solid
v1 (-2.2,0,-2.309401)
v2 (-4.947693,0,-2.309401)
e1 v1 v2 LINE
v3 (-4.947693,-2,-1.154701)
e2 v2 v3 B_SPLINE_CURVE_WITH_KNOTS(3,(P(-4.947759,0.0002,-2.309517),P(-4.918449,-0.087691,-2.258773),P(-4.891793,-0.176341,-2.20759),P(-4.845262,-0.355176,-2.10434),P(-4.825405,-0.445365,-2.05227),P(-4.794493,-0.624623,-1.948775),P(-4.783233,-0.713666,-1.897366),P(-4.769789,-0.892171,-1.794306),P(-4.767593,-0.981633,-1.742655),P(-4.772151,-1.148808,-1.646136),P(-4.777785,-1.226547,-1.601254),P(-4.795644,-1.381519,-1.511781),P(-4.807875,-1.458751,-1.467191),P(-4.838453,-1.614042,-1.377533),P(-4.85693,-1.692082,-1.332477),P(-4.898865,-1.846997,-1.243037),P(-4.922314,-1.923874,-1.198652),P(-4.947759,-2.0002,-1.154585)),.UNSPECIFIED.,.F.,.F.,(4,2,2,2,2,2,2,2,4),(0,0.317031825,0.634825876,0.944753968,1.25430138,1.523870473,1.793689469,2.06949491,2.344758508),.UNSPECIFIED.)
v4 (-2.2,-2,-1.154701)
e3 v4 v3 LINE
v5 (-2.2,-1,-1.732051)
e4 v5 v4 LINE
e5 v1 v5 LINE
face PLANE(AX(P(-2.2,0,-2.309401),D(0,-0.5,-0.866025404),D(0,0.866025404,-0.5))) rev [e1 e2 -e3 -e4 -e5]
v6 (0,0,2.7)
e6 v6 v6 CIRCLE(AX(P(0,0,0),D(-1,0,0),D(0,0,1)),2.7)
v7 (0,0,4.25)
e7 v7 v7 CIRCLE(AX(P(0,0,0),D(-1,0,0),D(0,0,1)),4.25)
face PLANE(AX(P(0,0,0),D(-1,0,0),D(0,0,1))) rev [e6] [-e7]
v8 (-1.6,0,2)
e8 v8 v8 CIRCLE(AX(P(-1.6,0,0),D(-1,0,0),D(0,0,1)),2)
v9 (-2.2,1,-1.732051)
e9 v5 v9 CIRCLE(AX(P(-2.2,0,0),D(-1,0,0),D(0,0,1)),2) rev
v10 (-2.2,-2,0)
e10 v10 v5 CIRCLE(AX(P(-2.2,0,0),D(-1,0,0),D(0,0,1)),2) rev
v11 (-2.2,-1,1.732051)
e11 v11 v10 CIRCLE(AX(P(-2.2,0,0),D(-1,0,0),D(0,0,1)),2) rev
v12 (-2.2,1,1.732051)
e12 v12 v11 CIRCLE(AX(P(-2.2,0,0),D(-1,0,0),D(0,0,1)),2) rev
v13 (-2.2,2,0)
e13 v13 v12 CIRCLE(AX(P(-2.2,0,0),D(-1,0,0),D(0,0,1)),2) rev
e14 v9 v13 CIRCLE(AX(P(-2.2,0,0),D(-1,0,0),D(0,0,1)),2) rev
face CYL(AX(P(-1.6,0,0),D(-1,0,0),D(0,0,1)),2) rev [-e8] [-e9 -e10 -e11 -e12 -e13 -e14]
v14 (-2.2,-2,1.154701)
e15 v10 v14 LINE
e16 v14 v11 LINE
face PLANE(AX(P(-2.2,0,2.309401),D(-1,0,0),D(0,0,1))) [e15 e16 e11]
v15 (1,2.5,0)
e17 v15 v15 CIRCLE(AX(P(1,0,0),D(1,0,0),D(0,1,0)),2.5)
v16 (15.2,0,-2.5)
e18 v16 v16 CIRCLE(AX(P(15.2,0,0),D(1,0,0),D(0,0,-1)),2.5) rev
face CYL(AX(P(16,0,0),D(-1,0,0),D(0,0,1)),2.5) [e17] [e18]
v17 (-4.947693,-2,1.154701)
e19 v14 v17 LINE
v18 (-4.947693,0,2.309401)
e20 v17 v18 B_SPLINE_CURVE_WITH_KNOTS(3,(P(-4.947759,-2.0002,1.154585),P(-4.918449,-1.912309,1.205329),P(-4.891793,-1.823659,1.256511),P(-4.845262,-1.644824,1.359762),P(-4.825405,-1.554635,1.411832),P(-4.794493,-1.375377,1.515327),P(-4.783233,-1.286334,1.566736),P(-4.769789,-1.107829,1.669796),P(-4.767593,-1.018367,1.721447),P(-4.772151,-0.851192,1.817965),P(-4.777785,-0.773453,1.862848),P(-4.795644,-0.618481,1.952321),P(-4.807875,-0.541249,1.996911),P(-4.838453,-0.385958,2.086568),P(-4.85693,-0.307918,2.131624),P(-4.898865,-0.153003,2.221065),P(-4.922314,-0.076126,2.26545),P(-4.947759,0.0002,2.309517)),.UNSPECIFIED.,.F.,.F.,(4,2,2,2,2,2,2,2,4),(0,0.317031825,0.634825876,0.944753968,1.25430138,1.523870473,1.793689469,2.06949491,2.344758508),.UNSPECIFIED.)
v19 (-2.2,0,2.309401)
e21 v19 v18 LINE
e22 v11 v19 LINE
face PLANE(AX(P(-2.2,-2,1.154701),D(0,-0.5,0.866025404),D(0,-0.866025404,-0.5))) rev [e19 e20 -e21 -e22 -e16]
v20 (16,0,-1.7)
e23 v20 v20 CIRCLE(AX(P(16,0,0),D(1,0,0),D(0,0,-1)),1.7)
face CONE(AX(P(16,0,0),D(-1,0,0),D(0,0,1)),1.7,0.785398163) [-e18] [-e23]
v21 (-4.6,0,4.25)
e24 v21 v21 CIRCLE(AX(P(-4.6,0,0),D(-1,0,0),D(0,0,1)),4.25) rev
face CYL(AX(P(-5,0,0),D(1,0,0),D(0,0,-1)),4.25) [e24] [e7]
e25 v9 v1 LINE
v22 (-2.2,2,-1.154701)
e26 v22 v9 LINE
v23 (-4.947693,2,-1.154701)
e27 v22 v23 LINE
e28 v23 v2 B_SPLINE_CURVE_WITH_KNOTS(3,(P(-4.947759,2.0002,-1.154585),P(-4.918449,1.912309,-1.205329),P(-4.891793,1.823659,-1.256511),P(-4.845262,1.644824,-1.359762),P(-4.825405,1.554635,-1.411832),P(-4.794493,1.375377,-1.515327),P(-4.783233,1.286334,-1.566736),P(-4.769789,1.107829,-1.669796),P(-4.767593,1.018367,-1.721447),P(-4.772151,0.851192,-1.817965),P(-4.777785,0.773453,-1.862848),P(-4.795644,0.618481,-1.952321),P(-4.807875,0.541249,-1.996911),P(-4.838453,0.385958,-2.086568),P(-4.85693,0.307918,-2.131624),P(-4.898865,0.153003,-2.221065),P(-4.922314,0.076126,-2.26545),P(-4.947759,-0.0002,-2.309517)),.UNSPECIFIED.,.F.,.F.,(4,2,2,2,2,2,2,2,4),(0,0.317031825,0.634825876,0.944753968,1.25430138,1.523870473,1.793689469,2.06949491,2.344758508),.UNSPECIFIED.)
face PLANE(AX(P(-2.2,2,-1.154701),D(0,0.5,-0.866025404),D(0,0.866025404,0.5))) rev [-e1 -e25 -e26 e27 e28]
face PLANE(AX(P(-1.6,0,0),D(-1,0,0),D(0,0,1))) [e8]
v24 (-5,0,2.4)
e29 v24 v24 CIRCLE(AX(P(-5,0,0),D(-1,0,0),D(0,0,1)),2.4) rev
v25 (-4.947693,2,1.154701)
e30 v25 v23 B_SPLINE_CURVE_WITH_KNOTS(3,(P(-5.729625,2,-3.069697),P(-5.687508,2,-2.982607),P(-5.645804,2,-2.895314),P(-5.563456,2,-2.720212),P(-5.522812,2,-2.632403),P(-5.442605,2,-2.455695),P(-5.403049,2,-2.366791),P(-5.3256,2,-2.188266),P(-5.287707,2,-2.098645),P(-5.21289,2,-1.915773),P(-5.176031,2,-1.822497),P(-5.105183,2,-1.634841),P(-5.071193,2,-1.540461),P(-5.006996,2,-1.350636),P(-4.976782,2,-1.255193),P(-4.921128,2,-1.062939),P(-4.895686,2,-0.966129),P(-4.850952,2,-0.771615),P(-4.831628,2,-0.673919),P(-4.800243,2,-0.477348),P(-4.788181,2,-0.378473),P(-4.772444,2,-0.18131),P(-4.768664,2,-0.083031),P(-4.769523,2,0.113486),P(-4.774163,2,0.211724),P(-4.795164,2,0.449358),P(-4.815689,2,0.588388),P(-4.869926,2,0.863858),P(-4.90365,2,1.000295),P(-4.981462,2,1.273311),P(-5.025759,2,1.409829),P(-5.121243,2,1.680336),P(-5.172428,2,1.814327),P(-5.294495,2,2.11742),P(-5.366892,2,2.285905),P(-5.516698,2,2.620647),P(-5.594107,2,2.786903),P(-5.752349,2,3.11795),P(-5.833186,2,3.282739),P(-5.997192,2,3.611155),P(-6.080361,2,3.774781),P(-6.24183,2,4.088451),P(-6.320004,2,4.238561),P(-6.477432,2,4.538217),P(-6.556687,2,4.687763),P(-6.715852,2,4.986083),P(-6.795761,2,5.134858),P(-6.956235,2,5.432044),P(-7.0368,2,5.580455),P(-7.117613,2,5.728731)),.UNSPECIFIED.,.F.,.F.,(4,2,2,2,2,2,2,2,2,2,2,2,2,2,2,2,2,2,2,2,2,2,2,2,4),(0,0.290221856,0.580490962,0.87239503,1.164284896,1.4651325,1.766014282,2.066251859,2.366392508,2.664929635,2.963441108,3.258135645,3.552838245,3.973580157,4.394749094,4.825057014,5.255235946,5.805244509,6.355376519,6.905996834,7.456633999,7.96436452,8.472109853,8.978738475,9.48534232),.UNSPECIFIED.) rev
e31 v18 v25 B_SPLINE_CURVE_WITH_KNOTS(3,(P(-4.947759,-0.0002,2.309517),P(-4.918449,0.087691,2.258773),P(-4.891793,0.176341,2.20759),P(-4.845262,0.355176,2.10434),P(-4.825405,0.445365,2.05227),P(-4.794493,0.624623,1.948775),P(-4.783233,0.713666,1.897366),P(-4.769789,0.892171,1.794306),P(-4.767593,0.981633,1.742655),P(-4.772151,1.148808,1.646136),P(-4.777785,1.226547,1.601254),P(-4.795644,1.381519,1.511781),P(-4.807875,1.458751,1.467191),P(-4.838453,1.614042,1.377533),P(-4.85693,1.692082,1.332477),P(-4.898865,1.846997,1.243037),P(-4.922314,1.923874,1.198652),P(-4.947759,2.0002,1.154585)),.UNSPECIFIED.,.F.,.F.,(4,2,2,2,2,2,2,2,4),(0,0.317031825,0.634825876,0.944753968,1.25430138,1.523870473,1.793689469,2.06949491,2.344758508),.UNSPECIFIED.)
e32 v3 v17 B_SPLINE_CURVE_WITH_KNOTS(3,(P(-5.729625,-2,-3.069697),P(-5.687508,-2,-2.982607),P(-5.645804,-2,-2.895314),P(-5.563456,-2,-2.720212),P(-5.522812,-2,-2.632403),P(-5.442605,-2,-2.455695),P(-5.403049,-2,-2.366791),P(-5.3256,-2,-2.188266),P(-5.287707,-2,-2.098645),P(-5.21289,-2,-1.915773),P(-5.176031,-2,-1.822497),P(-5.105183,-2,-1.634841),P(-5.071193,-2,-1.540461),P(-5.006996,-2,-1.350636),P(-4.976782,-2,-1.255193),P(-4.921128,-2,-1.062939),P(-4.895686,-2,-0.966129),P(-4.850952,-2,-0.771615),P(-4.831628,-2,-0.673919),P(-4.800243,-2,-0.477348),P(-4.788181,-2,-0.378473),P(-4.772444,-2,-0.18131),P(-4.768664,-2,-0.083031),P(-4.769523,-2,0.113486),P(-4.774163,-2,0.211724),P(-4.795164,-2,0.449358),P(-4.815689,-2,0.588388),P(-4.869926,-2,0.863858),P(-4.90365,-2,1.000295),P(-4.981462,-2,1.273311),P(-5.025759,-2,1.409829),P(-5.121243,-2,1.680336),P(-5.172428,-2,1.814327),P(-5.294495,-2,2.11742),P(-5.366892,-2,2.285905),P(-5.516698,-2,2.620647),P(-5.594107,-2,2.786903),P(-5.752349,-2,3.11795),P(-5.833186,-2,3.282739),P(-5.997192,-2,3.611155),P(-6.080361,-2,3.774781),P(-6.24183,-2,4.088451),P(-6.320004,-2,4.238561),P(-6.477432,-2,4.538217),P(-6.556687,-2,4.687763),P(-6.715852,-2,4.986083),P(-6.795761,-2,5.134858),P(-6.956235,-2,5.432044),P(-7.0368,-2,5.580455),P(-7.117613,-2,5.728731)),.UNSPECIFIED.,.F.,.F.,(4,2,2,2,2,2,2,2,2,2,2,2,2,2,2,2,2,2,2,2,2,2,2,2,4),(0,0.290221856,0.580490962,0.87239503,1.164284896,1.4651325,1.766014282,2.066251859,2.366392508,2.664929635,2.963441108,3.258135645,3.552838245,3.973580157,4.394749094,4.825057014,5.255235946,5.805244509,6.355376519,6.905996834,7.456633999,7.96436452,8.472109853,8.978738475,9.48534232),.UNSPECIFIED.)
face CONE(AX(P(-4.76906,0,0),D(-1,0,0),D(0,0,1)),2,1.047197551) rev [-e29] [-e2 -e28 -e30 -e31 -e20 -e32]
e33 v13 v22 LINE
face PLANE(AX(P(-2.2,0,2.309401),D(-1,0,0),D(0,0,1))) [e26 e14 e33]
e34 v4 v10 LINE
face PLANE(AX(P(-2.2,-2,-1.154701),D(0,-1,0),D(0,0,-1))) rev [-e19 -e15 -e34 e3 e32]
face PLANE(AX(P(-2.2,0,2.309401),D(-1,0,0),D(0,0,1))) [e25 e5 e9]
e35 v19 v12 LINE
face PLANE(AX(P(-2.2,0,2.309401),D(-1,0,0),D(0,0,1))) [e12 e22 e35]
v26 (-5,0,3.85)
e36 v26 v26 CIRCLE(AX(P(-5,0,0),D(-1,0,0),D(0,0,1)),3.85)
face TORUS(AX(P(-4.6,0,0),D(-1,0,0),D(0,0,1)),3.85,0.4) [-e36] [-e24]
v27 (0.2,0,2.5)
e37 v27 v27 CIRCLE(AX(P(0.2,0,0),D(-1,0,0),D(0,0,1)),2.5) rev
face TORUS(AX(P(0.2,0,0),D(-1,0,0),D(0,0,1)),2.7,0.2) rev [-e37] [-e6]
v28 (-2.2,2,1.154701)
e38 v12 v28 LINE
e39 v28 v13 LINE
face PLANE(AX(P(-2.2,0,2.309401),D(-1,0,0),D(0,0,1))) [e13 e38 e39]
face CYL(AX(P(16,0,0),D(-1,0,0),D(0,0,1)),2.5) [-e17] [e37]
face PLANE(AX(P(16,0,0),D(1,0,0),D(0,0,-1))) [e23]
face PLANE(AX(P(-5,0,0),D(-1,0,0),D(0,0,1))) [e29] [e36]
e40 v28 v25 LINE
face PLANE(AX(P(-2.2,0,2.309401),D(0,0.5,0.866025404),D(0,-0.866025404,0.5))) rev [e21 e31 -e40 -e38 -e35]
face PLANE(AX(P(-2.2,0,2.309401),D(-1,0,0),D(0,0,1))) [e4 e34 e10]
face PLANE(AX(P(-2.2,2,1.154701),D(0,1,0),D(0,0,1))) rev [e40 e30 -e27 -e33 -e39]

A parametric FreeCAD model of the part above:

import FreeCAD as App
import Part
import Sketcher

V = App.Vector
Q = App.Units.Quantity


def edges_at(feature, points):
    """Names of the edges that pass closest to the given points."""
    edges = feature.Shape.Edges
    near = lambda p: min(range(len(edges)), key=lambda i: edges[i].distToShape(Part.Vertex(*p))[0])
    return sorted({f"Edge{near(p) + 1}" for p in points})


def add_polygon(sketch, points):
    """Adds a closed chain of lines whose ends are joined by coincident constraints."""
    first, n = sketch.GeometryCount, len(points)
    for a, b in zip(points, points[1:] + points[:1]):
        sketch.addGeometry(Part.LineSegment(App.Vector(*a, 0), App.Vector(*b, 0)), False)
    for i in range(n):
        sketch.addConstraint(Sketcher.Constraint("Coincident", first + i, 2, first + (i + 1) % n, 1))

doc = App.newDocument("Part")
body = doc.addObject("PartDesign::Body", "Body")

# Sketch on YZ plane
sketch1 = body.newObject("Sketcher::SketchObject", "Sketch")
sketch1.AttachmentSupport = (doc.getObject("YZ_Plane"), [""])
sketch1.MapMode = "FlatFace"
sketch1.addGeometry(Part.Circle(V(0, 0, 0), V(0, 0, 1), 2.5), False)
sketch1.addConstraint(Sketcher.Constraint("Coincident", 0, 3, -1, 1))
sketch1.addConstraint(Sketcher.Constraint("Diameter", 0, 5.0))
pad1 = body.newObject("PartDesign::Pad", "Pad")
pad1.Profile = sketch1
pad1.Length = 16

# Sketch on YZ plane
sketch2 = body.newObject("Sketcher::SketchObject", "Sketch001")
sketch2.AttachmentSupport = (doc.getObject("YZ_Plane"), [""])
sketch2.MapMode = "FlatFace"
sketch2.addGeometry(Part.Circle(V(0, 0, 0), V(0, 0, 1), 4.2), False)
sketch2.addConstraint(Sketcher.Constraint("Coincident", 0, 3, -1, 1))
sketch2.addConstraint(Sketcher.Constraint("Diameter", 0, 8.5))
pad2 = body.newObject("PartDesign::Pad", "Pad001")
pad2.Profile = sketch2
pad2.Length = 5
pad2.Reversed = True

# Sketch on YZ plane
sketch3 = body.newObject("Sketcher::SketchObject", "Sketch002")
sketch3.AttachmentSupport = (doc.getObject("YZ_Plane"), [""])
sketch3.MapMode = "FlatFace"
sketch3.AttachmentOffset = App.Placement(V(0, 0, -5), App.Rotation())
sketch3.addGeometry(Part.Circle(V(0, 0, 0), V(0, 0, 1), 2), False)
sketch3.addConstraint(Sketcher.Constraint("Coincident", 0, 3, -1, 1))
sketch3.addConstraint(Sketcher.Constraint("Diameter", 0, 4.0))
pocket1 = body.newObject("PartDesign::Pocket", "Pocket")
pocket1.Profile = sketch3
pocket1.Length = 3.4
pocket1.Reversed = True
doc.recompute()

chamfer = body.newObject("PartDesign::Chamfer", "Chamfer")
chamfer.Base = (pocket1, edges_at(pocket1, [(16, 0, 2.5)]))
chamfer.Size = 0.8
doc.recompute()

fillet = body.newObject("PartDesign::Fillet", "Fillet")
fillet.Base = (chamfer, edges_at(chamfer, [(-5, 0, -4.25)]))
fillet.Radius = 0.4
doc.recompute()

fillet2 = body.newObject("PartDesign::Fillet", "Fillet001")
fillet2.Base = (fillet, edges_at(fillet, [(0, 0, 2.5)]))
fillet2.Radius = 0.2
doc.recompute()

chamfer2 = body.newObject("PartDesign::Chamfer", "Chamfer001")
chamfer2.Base = (fillet2, edges_at(fillet2, [(-5, 0, -2)]))
chamfer2.ChamferType = "Two distances"
chamfer2.Size = 0.4
chamfer2.Size2 = 0.23094

# Sketch on YZ plane
sketch4 = body.newObject("Sketcher::SketchObject", "Sketch003")
sketch4.AttachmentSupport = (doc.getObject("YZ_Plane"), [""])
sketch4.MapMode = "FlatFace"
sketch4.AttachmentOffset = App.Placement(V(0, 0, -5), App.Rotation())
add_polygon(sketch4, [(0, 2.3), (2, 1.2), (2, -1.2), (0, -2.3), (-2, -1.2), (-2, 1.2)])  # lines 0-5
sketch4.addConstraint(Sketcher.Constraint("Vertical", 1))
sketch4.addConstraint(Sketcher.Constraint("Vertical", 4))
sketch4.addConstraint(Sketcher.Constraint("Symmetric", 0, 2, 3, 2, -1, 1))
sketch4.addConstraint(Sketcher.Constraint("Symmetric", 2, 2, 5, 2, -1, 1))
sketch4.addConstraint(Sketcher.Constraint("PointOnObject", 2, 2, -2))
sketch4.addConstraint(Sketcher.Constraint("Parallel", 2, 5))
sketch4.addConstraint(Sketcher.Constraint("Horizontal", 1, 2, 3, 2))
sketch4.addConstraint(Sketcher.Constraint("Angle", 0, Q("-30 deg")))
sketch4.addConstraint(Sketcher.Constraint("DistanceX", -1, 1, 0, 2, 2.0))
sketch4.addConstraint(Sketcher.Constraint("DistanceY", 1, 2, 1, 1, 2.309401))
pocket2 = body.newObject("PartDesign::Pocket", "Pocket001")
pocket2.Profile = sketch4
pocket2.Length = 2.8
pocket2.Reversed = True

doc.recompute()
